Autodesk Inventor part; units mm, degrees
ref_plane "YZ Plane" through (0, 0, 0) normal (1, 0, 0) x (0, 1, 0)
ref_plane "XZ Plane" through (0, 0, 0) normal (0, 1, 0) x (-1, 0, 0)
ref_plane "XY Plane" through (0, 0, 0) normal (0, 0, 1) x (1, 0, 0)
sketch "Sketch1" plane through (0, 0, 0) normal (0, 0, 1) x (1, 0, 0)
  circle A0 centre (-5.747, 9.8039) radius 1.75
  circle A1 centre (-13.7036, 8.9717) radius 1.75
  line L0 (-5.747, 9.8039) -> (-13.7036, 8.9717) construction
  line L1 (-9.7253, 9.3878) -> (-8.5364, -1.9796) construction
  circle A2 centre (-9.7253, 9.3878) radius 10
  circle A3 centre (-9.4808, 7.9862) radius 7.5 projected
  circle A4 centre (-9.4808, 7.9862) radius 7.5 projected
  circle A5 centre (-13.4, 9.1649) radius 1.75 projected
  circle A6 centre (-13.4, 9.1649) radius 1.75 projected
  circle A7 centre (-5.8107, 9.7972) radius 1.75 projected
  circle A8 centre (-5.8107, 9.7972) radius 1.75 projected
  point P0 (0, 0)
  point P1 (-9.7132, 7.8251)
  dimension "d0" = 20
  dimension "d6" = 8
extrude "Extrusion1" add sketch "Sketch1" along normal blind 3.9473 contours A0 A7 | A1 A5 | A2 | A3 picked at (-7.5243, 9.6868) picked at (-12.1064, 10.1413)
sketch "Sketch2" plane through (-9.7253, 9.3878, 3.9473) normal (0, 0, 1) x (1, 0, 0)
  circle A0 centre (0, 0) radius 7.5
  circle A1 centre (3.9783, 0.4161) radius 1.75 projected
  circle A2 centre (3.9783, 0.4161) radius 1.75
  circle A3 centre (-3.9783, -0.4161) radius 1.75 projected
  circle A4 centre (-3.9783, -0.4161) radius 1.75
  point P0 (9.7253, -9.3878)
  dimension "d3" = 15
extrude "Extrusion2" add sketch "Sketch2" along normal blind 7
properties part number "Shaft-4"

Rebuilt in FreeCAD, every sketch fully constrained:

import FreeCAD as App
import Part
import Sketcher

V = App.Vector

doc = App.newDocument("Part")
params = doc.addObject("Spreadsheet::Sheet", "Params")
for row, (alias, value) in enumerate([
    ("sketch1_diameter", "20 mm"),
    ("sketch1_diameter2", "3.5 mm"),
    ("pad1_length", "3.9473 mm"),
    ("sketch2_diameter", "15 mm"),
    ("sketch2_diameter2", "3.5 mm"),
    ("pad2_length", "7 mm"),
], start=1):
    params.set(f"A{row}", alias)
    params.set(f"B{row}", "=" + value)
    params.setAlias(f"B{row}", alias)

body = doc.addObject("PartDesign::Body", "Body")

# Sketch on XY plane
sketch1 = body.newObject("Sketcher::SketchObject", "Sketch")
sketch1.AttachmentSupport = (doc.getObject("XY_Plane"), [""])
sketch1.MapMode = "FlatFace"
sketch1.addGeometry([
    Part.Circle(V(-9.7, 9.4, 0), V(0, 0, 1), 10),
    Part.Circle(V(-5.7, 9.8, 0), V(0, 0, 1), 1.8),
    Part.Circle(V(-13.7, 9, 0), V(0, 0, 1), 1.8),
], False)
sketch1.addConstraint([
    Sketcher.Constraint("Equal", 1, 2),
    Sketcher.Constraint("Diameter", 0, 20.0),
    Sketcher.Constraint("Diameter", 1, 3.5),
    Sketcher.Constraint("DistanceX", 1, 3, -1, 1, 5.747),
    Sketcher.Constraint("DistanceY", -1, 1, 1, 3, 9.804),
    Sketcher.Constraint("DistanceY", 0, 3, 1, 3, 0.416),
    Sketcher.Constraint("DistanceY", 2, 3, 0, 3, 0.416),
    Sketcher.Constraint("DistanceX", 0, 3, -1, 1, 9.7253),
    Sketcher.Constraint("DistanceX", 2, 3, -1, 1, 13.7036),
])
sketch1.setExpression("Constraints[1]", "Params.sketch1_diameter")
sketch1.setExpression("Constraints[2]", "Params.sketch1_diameter2")
pad1 = body.newObject("PartDesign::Pad", "Pad")
pad1.Profile = sketch1
pad1.setExpression("Length", "Params.pad1_length")

# Sketch on XY plane
sketch2 = body.newObject("Sketcher::SketchObject", "Sketch001")
sketch2.AttachmentSupport = (doc.getObject("XY_Plane"), [""])
sketch2.MapMode = "FlatFace"
sketch2.AttachmentOffset = App.Placement(V(0, 0, 3.9473), App.Rotation())
sketch2.addGeometry([
    Part.Circle(V(-9.7, 9.4, 0), V(0, 0, 1), 7.5),
    Part.Circle(V(-13.7, 9, 0), V(0, 0, 1), 1.8),
    Part.Circle(V(-5.7, 9.8, 0), V(0, 0, 1), 1.8),
], False)
sketch2.addConstraint([
    Sketcher.Constraint("Equal", 1, 2),
    Sketcher.Constraint("Diameter", 0, 15.0),
    Sketcher.Constraint("Diameter", 1, 3.5),
    Sketcher.Constraint("DistanceX", 2, 3, -1, 1, 5.747),
    Sketcher.Constraint("DistanceY", -1, 1, 2, 3, 9.804),
    Sketcher.Constraint("DistanceY", 1, 3, 0, 3, 0.416),
    Sketcher.Constraint("DistanceY", 0, 3, 2, 3, 0.416),
    Sketcher.Constraint("DistanceX", 0, 3, -1, 1, 9.7253),
    Sketcher.Constraint("DistanceX", 1, 3, -1, 1, 13.7036),
])
sketch2.setExpression("Constraints[1]", "Params.sketch2_diameter")
sketch2.setExpression("Constraints[2]", "Params.sketch2_diameter2")
pad2 = body.newObject("PartDesign::Pad", "Pad001")
pad2.Profile = sketch2
pad2.setExpression("Length", "Params.pad2_length")

doc.recompute()
